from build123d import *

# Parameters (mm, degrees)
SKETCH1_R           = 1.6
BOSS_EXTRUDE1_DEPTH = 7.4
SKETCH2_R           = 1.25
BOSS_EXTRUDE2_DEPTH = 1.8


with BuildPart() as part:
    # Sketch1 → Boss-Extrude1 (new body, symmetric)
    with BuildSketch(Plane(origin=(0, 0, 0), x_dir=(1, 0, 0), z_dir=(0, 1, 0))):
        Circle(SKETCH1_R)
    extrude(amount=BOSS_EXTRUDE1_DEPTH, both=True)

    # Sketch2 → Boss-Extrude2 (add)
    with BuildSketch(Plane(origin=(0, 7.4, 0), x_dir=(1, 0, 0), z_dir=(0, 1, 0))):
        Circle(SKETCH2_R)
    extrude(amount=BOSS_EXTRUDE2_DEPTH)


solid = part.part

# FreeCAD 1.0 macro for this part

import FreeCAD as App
import Part
import Sketcher
from FreeCAD import Vector
Q = App.Units.Quantity

doc = App.newDocument("Part")
body = doc.addObject("PartDesign::Body", "Body")

# Sketch on XZ plane
sketch1 = doc.addObject("Sketcher::SketchObject", "Sketch")
body.addObject(sketch1)
sketch1.AttachmentSupport = (doc.XZ_Plane, [""])
sketch1.MapMode = "FlatFace"
sketch1.addGeometry(Part.Circle(Vector(0, 0, 0), Vector(0, 0, 1), 1.6), False)
sketch1.addConstraint(Sketcher.Constraint("Coincident", 0, 3, -1, 1))
sketch1.addConstraint(Sketcher.Constraint("Diameter", 0, Q("3.2 mm")))
pad1 = doc.addObject("PartDesign::Pad", "Pad")
body.addObject(pad1)
pad1.Profile = sketch1
pad1.Length = 14.8
pad1.Midplane = True

# Sketch on XZ plane
sketch2 = doc.addObject("Sketcher::SketchObject", "Sketch001")
body.addObject(sketch2)
sketch2.AttachmentSupport = (doc.XZ_Plane, [""])
sketch2.MapMode = "FlatFace"
sketch2.AttachmentOffset = App.Placement(Vector(0, 0, -7.4), App.Rotation())
sketch2.addGeometry(Part.Circle(Vector(0, 0, 0), Vector(0, 0, 1), 1.2), False)
sketch2.addConstraint(Sketcher.Constraint("Coincident", 0, 3, -1, 1))
sketch2.addConstraint(Sketcher.Constraint("Diameter", 0, Q("2.5 mm")))
pad2 = doc.addObject("PartDesign::Pad", "Pad001")
body.addObject(pad2)
pad2.Profile = sketch2
pad2.Length = 1.8
pad2.Reversed = True

doc.recompute()
